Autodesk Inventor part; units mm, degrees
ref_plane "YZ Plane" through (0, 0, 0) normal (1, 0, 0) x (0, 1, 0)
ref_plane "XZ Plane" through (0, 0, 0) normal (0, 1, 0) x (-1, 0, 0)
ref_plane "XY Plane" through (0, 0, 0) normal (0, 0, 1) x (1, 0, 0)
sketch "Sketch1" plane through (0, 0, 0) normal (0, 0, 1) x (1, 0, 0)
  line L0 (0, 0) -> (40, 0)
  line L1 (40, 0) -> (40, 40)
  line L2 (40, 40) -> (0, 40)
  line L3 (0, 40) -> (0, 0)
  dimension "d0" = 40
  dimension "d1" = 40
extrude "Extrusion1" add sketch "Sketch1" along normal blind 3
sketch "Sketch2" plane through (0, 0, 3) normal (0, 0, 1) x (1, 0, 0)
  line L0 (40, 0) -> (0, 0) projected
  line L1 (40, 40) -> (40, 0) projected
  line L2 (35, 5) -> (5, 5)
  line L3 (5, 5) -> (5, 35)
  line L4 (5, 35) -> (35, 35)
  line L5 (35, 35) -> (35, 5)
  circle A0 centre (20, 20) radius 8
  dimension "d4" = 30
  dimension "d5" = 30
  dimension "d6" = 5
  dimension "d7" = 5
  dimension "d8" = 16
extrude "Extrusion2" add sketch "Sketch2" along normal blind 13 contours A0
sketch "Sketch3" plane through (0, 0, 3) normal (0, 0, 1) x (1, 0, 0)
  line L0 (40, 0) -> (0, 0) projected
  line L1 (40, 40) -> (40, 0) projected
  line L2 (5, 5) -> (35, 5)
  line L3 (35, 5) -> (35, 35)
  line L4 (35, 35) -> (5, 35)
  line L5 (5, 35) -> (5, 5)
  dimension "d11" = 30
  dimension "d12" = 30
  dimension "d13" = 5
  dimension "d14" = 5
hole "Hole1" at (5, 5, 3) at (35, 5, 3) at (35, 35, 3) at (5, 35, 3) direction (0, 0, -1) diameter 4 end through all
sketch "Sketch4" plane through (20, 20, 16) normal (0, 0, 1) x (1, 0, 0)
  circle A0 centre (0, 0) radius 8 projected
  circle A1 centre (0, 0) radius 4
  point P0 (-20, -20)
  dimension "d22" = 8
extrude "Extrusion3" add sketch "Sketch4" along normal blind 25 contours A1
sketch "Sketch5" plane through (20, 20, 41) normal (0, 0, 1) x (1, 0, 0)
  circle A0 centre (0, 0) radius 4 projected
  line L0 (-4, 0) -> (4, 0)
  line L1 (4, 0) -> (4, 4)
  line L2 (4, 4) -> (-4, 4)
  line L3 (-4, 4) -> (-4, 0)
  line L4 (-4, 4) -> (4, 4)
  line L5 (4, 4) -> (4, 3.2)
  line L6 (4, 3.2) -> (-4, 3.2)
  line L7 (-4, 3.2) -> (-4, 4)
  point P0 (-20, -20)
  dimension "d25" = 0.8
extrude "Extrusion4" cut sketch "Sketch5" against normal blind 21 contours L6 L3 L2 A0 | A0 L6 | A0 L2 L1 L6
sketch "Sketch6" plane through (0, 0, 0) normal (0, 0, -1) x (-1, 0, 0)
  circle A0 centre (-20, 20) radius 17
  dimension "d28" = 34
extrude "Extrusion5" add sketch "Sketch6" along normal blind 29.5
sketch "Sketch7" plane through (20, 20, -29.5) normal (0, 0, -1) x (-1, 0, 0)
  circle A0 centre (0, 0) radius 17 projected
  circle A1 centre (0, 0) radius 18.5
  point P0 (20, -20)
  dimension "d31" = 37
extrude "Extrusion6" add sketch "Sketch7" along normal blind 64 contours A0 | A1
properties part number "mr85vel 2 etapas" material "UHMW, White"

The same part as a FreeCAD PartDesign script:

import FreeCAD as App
import Part
import Sketcher
Q = App.Units.Quantity

doc = App.newDocument("Part")
params = doc.addObject("Spreadsheet::Sheet", "Params")
for row, (alias, value) in enumerate([
    ("sketch1_width", "40 mm"),
    ("pad1_length", "3 mm"),
    ("sketch2_diameter", "16 mm"),
    ("pad2_length", "13 mm"),
    ("sketch3_diameter", "4 mm"),
    ("hole_diameter", "4 mm"),
    ("sketch4_diameter", "8 mm"),
    ("pad3_length", "25 mm"),
    ("sketch5_height", "0.8 mm"),
    ("sketch5_width", "8 mm"),
    ("pocket1_length", "21 mm"),
    ("sketch6_diameter", "34 mm"),
    ("pad4_length", "29.5 mm"),
    ("sketch7_diameter", "37 mm"),
    ("pad5_length", "64 mm"),
], start=1):
    params.set(f"A{row}", alias)
    params.set(f"B{row}", "=" + value)
    params.setAlias(f"B{row}", alias)

body = doc.addObject("PartDesign::Body", "Body")

# Sketch on XY plane
sketch1 = body.newObject("Sketcher::SketchObject", "Sketch")
sketch1.AttachmentSupport = (doc.getObject("XY_Plane"), [""])
sketch1.MapMode = "FlatFace"
sketch1.addGeometry(Part.LineSegment(App.Vector(0, 40, 0), App.Vector(0, 0, 0)), False)
sketch1.addGeometry(Part.LineSegment(App.Vector(0, 0, 0), App.Vector(40, 0, 0)), False)
sketch1.addGeometry(Part.LineSegment(App.Vector(40, 0, 0), App.Vector(40, 40, 0)), False)
sketch1.addGeometry(Part.LineSegment(App.Vector(40, 40, 0), App.Vector(0, 40, 0)), False)
sketch1.addConstraint(Sketcher.Constraint("Coincident", 0, 2, 1, 1))
sketch1.addConstraint(Sketcher.Constraint("Coincident", 1, 2, 2, 1))
sketch1.addConstraint(Sketcher.Constraint("Coincident", 2, 2, 3, 1))
sketch1.addConstraint(Sketcher.Constraint("Coincident", 3, 2, 0, 1))
sketch1.addConstraint(Sketcher.Constraint("Vertical", 0))
sketch1.addConstraint(Sketcher.Constraint("Horizontal", 1))
sketch1.addConstraint(Sketcher.Constraint("Vertical", 2))
sketch1.addConstraint(Sketcher.Constraint("Horizontal", 3))
sketch1.addConstraint(Sketcher.Constraint("Coincident", 0, 2, -1, 1))
sketch1.addConstraint(Sketcher.Constraint("Equal", 3, 0))
sketch1.addConstraint(Sketcher.Constraint("DistanceX", 1, 1, 1, 2, Q("40 mm")))
sketch1.setExpression("Constraints[10]", "Params.sketch1_width")
pad1 = body.newObject("PartDesign::Pad", "Pad")
pad1.Profile = sketch1
pad1.setExpression("Length", "Params.pad1_length")

# Sketch on XY plane
sketch2 = body.newObject("Sketcher::SketchObject", "Sketch001")
sketch2.AttachmentSupport = (doc.getObject("XY_Plane"), [""])
sketch2.MapMode = "FlatFace"
sketch2.AttachmentOffset = App.Placement(App.Vector(0, 0, 3), App.Rotation())
sketch2.addGeometry(Part.Circle(App.Vector(20, 20, 0), App.Vector(0, 0, 1), 8), False)
sketch2.addConstraint(Sketcher.Constraint("Diameter", 0, Q("16 mm")))
sketch2.addConstraint(Sketcher.Constraint("DistanceX", -1, 1, 0, 3, Q("20 mm")))
sketch2.addConstraint(Sketcher.Constraint("DistanceY", -1, 1, 0, 3, Q("20 mm")))
sketch2.setExpression("Constraints[0]", "Params.sketch2_diameter")
pad2 = body.newObject("PartDesign::Pad", "Pad001")
pad2.Profile = sketch2
pad2.setExpression("Length", "Params.pad2_length")

# Sketch on XY plane
sketch3 = body.newObject("Sketcher::SketchObject", "Sketch002")
sketch3.AttachmentSupport = (doc.getObject("XY_Plane"), [""])
sketch3.MapMode = "FlatFace"
sketch3.AttachmentOffset = App.Placement(App.Vector(0, 0, 3), App.Rotation())
sketch3.addGeometry(Part.Circle(App.Vector(5, 5, 0), App.Vector(0, 0, 1), 2), False)
sketch3.addGeometry(Part.Circle(App.Vector(35, 5, 0), App.Vector(0, 0, 1), 2), False)
sketch3.addGeometry(Part.Circle(App.Vector(35, 35, 0), App.Vector(0, 0, 1), 2), False)
sketch3.addGeometry(Part.Circle(App.Vector(5, 35, 0), App.Vector(0, 0, 1), 2), False)
sketch3.addConstraint(Sketcher.Constraint("Equal", 0, 1))
sketch3.addConstraint(Sketcher.Constraint("Equal", 1, 2))
sketch3.addConstraint(Sketcher.Constraint("Equal", 2, 3))
sketch3.addConstraint(Sketcher.Constraint("Horizontal", 0, 3, 1, 3))
sketch3.addConstraint(Sketcher.Constraint("Horizontal", 2, 3, 3, 3))
sketch3.addConstraint(Sketcher.Constraint("Vertical", 1, 3, 2, 3))
sketch3.addConstraint(Sketcher.Constraint("Vertical", 0, 3, 3, 3))
sketch3.addConstraint(Sketcher.Constraint("Diameter", 0, Q("4 mm")))
sketch3.addConstraint(Sketcher.Constraint("DistanceX", -1, 1, 0, 3, Q("5 mm")))
sketch3.addConstraint(Sketcher.Constraint("DistanceY", -1, 1, 0, 3, Q("5 mm")))
sketch3.addConstraint(Sketcher.Constraint("DistanceX", -1, 1, 1, 3, Q("35 mm")))
sketch3.addConstraint(Sketcher.Constraint("DistanceY", -1, 1, 2, 3, Q("35 mm")))
sketch3.setExpression("Constraints[7]", "Params.sketch3_diameter")
doc.recompute()
hole = body.newObject("PartDesign::Hole", "Hole")
hole.Profile = sketch3
hole.ThreadType = "None"
hole.setExpression("Diameter", "Params.hole_diameter")
hole.DepthType = "ThroughAll"

# Sketch on XY plane
sketch4 = body.newObject("Sketcher::SketchObject", "Sketch003")
sketch4.AttachmentSupport = (doc.getObject("XY_Plane"), [""])
sketch4.MapMode = "FlatFace"
sketch4.AttachmentOffset = App.Placement(App.Vector(0, 0, 16), App.Rotation())
sketch4.addGeometry(Part.Circle(App.Vector(20, 20, 0), App.Vector(0, 0, 1), 4), False)
sketch4.addConstraint(Sketcher.Constraint("Diameter", 0, Q("8 mm")))
sketch4.addConstraint(Sketcher.Constraint("DistanceX", -1, 1, 0, 3, Q("20 mm")))
sketch4.addConstraint(Sketcher.Constraint("DistanceY", -1, 1, 0, 3, Q("20 mm")))
sketch4.setExpression("Constraints[0]", "Params.sketch4_diameter")
pad3 = body.newObject("PartDesign::Pad", "Pad002")
pad3.Profile = sketch4
pad3.setExpression("Length", "Params.pad3_length")

# Sketch on XY plane
sketch5 = body.newObject("Sketcher::SketchObject", "Sketch004")
sketch5.AttachmentSupport = (doc.getObject("XY_Plane"), [""])
sketch5.MapMode = "FlatFace"
sketch5.AttachmentOffset = App.Placement(App.Vector(0, 0, 41), App.Rotation())
sketch5.addGeometry(Part.LineSegment(App.Vector(16, 23.2, 0), App.Vector(24, 23.2, 0)), False)
sketch5.addGeometry(Part.LineSegment(App.Vector(24, 23.2, 0), App.Vector(24, 24, 0)), False)
sketch5.addGeometry(Part.LineSegment(App.Vector(24, 24, 0), App.Vector(16, 24, 0)), False)
sketch5.addGeometry(Part.LineSegment(App.Vector(16, 24, 0), App.Vector(16, 23.2, 0)), False)
sketch5.addConstraint(Sketcher.Constraint("Coincident", 0, 2, 1, 1))
sketch5.addConstraint(Sketcher.Constraint("Coincident", 1, 2, 2, 1))
sketch5.addConstraint(Sketcher.Constraint("Coincident", 2, 2, 3, 1))
sketch5.addConstraint(Sketcher.Constraint("Coincident", 3, 2, 0, 1))
sketch5.addConstraint(Sketcher.Constraint("Horizontal", 0))
sketch5.addConstraint(Sketcher.Constraint("Vertical", 1))
sketch5.addConstraint(Sketcher.Constraint("Horizontal", 2))
sketch5.addConstraint(Sketcher.Constraint("Vertical", 3))
sketch5.addConstraint(Sketcher.Constraint("DistanceY", 1, 1, 1, 2, Q("0.8 mm")))
sketch5.addConstraint(Sketcher.Constraint("DistanceX", 0, 1, 0, 2, Q("8 mm")))
sketch5.addConstraint(Sketcher.Constraint("DistanceX", -1, 1, 0, 2, Q("24 mm")))
sketch5.addConstraint(Sketcher.Constraint("DistanceY", -1, 1, 1, 2, Q("24 mm")))
sketch5.setExpression("Constraints[8]", "Params.sketch5_height")
sketch5.setExpression("Constraints[9]", "Params.sketch5_width")
pocket1 = body.newObject("PartDesign::Pocket", "Pocket")
pocket1.Profile = sketch5
pocket1.setExpression("Length", "Params.pocket1_length")

# Sketch on XY plane
sketch6 = body.newObject("Sketcher::SketchObject", "Sketch005")
sketch6.AttachmentSupport = (doc.getObject("XY_Plane"), [""])
sketch6.MapMode = "FlatFace"
sketch6.addGeometry(Part.Circle(App.Vector(20, 20, 0), App.Vector(0, 0, 1), 17), False)
sketch6.addConstraint(Sketcher.Constraint("Diameter", 0, Q("34 mm")))
sketch6.addConstraint(Sketcher.Constraint("DistanceX", -1, 1, 0, 3, Q("20 mm")))
sketch6.addConstraint(Sketcher.Constraint("DistanceY", -1, 1, 0, 3, Q("20 mm")))
sketch6.setExpression("Constraints[0]", "Params.sketch6_diameter")
pad4 = body.newObject("PartDesign::Pad", "Pad003")
pad4.Profile = sketch6
pad4.setExpression("Length", "Params.pad4_length")
pad4.Reversed = True

# Sketch on XY plane
sketch7 = body.newObject("Sketcher::SketchObject", "Sketch006")
sketch7.AttachmentSupport = (doc.getObject("XY_Plane"), [""])
sketch7.MapMode = "FlatFace"
sketch7.AttachmentOffset = App.Placement(App.Vector(0, 0, -29.5), App.Rotation())
sketch7.addGeometry(Part.Circle(App.Vector(20, 20, 0), App.Vector(0, 0, 1), 18.5), False)
sketch7.addConstraint(Sketcher.Constraint("Diameter", 0, Q("37 mm")))
sketch7.addConstraint(Sketcher.Constraint("DistanceX", -1, 1, 0, 3, Q("20 mm")))
sketch7.addConstraint(Sketcher.Constraint("DistanceY", -1, 1, 0, 3, Q("20 mm")))
sketch7.setExpression("Constraints[0]", "Params.sketch7_diameter")
pad5 = body.newObject("PartDesign::Pad", "Pad004")
pad5.Profile = sketch7
pad5.setExpression("Length", "Params.pad5_length")
pad5.Reversed = True

doc.recompute()
